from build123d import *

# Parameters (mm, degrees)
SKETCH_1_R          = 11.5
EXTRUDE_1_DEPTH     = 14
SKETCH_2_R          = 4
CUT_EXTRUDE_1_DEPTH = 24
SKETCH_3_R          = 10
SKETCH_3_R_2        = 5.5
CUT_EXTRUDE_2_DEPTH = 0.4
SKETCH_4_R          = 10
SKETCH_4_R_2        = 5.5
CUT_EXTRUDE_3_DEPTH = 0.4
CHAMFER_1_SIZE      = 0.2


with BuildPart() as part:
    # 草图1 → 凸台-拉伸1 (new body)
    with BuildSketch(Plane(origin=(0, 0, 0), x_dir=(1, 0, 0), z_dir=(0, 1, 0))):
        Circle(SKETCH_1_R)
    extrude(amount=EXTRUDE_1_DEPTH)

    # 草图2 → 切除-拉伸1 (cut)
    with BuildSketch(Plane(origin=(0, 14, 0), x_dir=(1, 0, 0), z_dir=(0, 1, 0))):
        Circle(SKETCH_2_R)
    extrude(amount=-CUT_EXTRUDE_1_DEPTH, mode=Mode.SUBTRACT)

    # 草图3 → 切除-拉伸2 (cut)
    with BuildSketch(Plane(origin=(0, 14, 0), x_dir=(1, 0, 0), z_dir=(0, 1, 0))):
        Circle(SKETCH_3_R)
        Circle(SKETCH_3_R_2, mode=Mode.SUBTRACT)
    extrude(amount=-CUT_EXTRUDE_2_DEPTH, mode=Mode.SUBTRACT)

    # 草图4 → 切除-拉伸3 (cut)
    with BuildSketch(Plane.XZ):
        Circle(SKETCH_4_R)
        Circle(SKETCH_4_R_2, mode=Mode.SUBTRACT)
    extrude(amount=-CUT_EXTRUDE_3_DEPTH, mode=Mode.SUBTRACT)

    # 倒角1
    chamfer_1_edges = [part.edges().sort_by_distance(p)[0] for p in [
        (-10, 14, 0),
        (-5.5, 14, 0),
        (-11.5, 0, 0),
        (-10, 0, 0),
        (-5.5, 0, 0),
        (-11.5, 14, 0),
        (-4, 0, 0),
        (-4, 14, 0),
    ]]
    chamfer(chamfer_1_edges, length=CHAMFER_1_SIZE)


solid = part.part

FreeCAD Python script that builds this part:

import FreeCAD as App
import Part
import Sketcher
from FreeCAD import Vector


def edges_at(feature, points):
    """Names of the edges that pass closest to the given points."""
    edges = feature.Shape.Edges
    near = lambda p: min(range(len(edges)), key=lambda i: edges[i].distToShape(Part.Vertex(*p))[0])
    return sorted({f"Edge{near(p) + 1}" for p in points})

doc = App.newDocument("Part")
body = doc.addObject("PartDesign::Body", "Body")

# Sketch on XZ plane
sketch1 = doc.addObject("Sketcher::SketchObject", "Sketch")
body.addObject(sketch1)
sketch1.AttachmentSupport = (doc.XZ_Plane, [""])
sketch1.MapMode = "FlatFace"
sketch1.addGeometry(Part.Circle(Vector(0, 0, 0), Vector(0, 0, 1), 11.5), False)
sketch1.addConstraint([
    Sketcher.Constraint("Coincident", 0, 3, -1, 1),
    Sketcher.Constraint("Diameter", 0, 23.0),
])
pad1 = doc.addObject("PartDesign::Pad", "Pad")
body.addObject(pad1)
pad1.Profile = sketch1
pad1.Length = 14
pad1.Reversed = True

# Sketch on XZ plane
sketch2 = doc.addObject("Sketcher::SketchObject", "Sketch001")
body.addObject(sketch2)
sketch2.AttachmentSupport = (doc.XZ_Plane, [""])
sketch2.MapMode = "FlatFace"
sketch2.AttachmentOffset = App.Placement(Vector(0, 0, -14), App.Rotation())
sketch2.addGeometry(Part.Circle(Vector(0, 0, 0), Vector(0, 0, 1), 4), False)
sketch2.addConstraint([
    Sketcher.Constraint("Coincident", 0, 3, -1, 1),
    Sketcher.Constraint("Diameter", 0, 8.0),
])
pocket1 = doc.addObject("PartDesign::Pocket", "Pocket")
body.addObject(pocket1)
pocket1.Profile = sketch2
pocket1.Length = 24
pocket1.Reversed = True

# Sketch on XZ plane
sketch3 = doc.addObject("Sketcher::SketchObject", "Sketch002")
body.addObject(sketch3)
sketch3.AttachmentSupport = (doc.XZ_Plane, [""])
sketch3.MapMode = "FlatFace"
sketch3.AttachmentOffset = App.Placement(Vector(0, 0, -14), App.Rotation())
sketch3.addGeometry([
    Part.Circle(Vector(0, 0, 0), Vector(0, 0, 1), 10),
    Part.Circle(Vector(0, 0, 0), Vector(0, 0, 1), 5.5),
], False)
sketch3.addConstraint([
    Sketcher.Constraint("Coincident", 0, 3, -1, 1),
    Sketcher.Constraint("Coincident", 1, 3, -1, 1),
    Sketcher.Constraint("Diameter", 0, 20.0),
    Sketcher.Constraint("Diameter", 1, 11.0),
])
pocket2 = doc.addObject("PartDesign::Pocket", "Pocket001")
body.addObject(pocket2)
pocket2.Profile = sketch3
pocket2.Length = 0.4
pocket2.Reversed = True

# Sketch on XZ plane
sketch4 = doc.addObject("Sketcher::SketchObject", "Sketch003")
body.addObject(sketch4)
sketch4.AttachmentSupport = (doc.XZ_Plane, [""])
sketch4.MapMode = "FlatFace"
sketch4.addGeometry([
    Part.Circle(Vector(0, 0, 0), Vector(0, 0, 1), 10),
    Part.Circle(Vector(0, 0, 0), Vector(0, 0, 1), 5.5),
], False)
sketch4.addConstraint([
    Sketcher.Constraint("Coincident", 0, 3, -1, 1),
    Sketcher.Constraint("Coincident", 1, 3, -1, 1),
    Sketcher.Constraint("Diameter", 0, 20.0),
    Sketcher.Constraint("Diameter", 1, 11.0),
])
pocket3 = doc.addObject("PartDesign::Pocket", "Pocket002")
body.addObject(pocket3)
pocket3.Profile = sketch4
pocket3.Length = 0.4
doc.recompute()

chamfer = doc.addObject("PartDesign::Chamfer", "Chamfer")
body.addObject(chamfer)
chamfer.Base = (pocket3, edges_at(pocket3, [
    (-10, 14, 0),
    (-5.5, 14, 0),
    (-11.5, 0, 0),
    (-10, 0, 0),
    (-5.5, 0, 0),
    (-11.5, 14, 0),
    (-4, 0, 0),
    (-4, 14, 0),
]))
chamfer.Size = 0.2

doc.recompute()
